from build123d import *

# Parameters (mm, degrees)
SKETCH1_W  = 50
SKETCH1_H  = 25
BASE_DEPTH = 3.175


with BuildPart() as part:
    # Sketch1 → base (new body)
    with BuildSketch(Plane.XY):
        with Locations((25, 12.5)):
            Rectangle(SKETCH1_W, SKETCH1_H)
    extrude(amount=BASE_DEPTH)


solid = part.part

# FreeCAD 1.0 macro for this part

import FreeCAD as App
import Part
import Sketcher
from FreeCAD import Vector
Q = App.Units.Quantity


def add_polygon(sketch, points):
    """Adds a closed chain of lines whose ends are joined by coincident constraints."""
    first, n = sketch.GeometryCount, len(points)
    for a, b in zip(points, points[1:] + points[:1]):
        sketch.addGeometry(Part.LineSegment(App.Vector(*a, 0), App.Vector(*b, 0)), False)
    for i in range(n):
        sketch.addConstraint(Sketcher.Constraint("Coincident", first + i, 2, first + (i + 1) % n, 1))

doc = App.newDocument("Part")
body = doc.addObject("PartDesign::Body", "Body")

sketch1 = body.newObject("Sketcher::SketchObject", "Sketch")
sketch1.AttachmentSupport = (doc.getObject("XY_Plane"), [""])
sketch1.MapMode = "FlatFace"
add_polygon(sketch1, [(0, 25), (0, 0), (50, 0), (50, 25)])
sketch1.addConstraint([
    Sketcher.Constraint("Vertical", 0),
    Sketcher.Constraint("Horizontal", 1),
    Sketcher.Constraint("Vertical", 2),
    Sketcher.Constraint("Horizontal", 3),
    Sketcher.Constraint("Coincident", 0, 2, -1, 1),
    Sketcher.Constraint("DistanceX", 1, 1, 1, 2, Q("50 mm")),
    Sketcher.Constraint("DistanceY", 0, 2, 0, 1, Q("25 mm")),
])
pad1 = body.newObject("PartDesign::Pad", "Pad")
pad1.Profile = sketch1
pad1.Length = 3.175

doc.recompute()
